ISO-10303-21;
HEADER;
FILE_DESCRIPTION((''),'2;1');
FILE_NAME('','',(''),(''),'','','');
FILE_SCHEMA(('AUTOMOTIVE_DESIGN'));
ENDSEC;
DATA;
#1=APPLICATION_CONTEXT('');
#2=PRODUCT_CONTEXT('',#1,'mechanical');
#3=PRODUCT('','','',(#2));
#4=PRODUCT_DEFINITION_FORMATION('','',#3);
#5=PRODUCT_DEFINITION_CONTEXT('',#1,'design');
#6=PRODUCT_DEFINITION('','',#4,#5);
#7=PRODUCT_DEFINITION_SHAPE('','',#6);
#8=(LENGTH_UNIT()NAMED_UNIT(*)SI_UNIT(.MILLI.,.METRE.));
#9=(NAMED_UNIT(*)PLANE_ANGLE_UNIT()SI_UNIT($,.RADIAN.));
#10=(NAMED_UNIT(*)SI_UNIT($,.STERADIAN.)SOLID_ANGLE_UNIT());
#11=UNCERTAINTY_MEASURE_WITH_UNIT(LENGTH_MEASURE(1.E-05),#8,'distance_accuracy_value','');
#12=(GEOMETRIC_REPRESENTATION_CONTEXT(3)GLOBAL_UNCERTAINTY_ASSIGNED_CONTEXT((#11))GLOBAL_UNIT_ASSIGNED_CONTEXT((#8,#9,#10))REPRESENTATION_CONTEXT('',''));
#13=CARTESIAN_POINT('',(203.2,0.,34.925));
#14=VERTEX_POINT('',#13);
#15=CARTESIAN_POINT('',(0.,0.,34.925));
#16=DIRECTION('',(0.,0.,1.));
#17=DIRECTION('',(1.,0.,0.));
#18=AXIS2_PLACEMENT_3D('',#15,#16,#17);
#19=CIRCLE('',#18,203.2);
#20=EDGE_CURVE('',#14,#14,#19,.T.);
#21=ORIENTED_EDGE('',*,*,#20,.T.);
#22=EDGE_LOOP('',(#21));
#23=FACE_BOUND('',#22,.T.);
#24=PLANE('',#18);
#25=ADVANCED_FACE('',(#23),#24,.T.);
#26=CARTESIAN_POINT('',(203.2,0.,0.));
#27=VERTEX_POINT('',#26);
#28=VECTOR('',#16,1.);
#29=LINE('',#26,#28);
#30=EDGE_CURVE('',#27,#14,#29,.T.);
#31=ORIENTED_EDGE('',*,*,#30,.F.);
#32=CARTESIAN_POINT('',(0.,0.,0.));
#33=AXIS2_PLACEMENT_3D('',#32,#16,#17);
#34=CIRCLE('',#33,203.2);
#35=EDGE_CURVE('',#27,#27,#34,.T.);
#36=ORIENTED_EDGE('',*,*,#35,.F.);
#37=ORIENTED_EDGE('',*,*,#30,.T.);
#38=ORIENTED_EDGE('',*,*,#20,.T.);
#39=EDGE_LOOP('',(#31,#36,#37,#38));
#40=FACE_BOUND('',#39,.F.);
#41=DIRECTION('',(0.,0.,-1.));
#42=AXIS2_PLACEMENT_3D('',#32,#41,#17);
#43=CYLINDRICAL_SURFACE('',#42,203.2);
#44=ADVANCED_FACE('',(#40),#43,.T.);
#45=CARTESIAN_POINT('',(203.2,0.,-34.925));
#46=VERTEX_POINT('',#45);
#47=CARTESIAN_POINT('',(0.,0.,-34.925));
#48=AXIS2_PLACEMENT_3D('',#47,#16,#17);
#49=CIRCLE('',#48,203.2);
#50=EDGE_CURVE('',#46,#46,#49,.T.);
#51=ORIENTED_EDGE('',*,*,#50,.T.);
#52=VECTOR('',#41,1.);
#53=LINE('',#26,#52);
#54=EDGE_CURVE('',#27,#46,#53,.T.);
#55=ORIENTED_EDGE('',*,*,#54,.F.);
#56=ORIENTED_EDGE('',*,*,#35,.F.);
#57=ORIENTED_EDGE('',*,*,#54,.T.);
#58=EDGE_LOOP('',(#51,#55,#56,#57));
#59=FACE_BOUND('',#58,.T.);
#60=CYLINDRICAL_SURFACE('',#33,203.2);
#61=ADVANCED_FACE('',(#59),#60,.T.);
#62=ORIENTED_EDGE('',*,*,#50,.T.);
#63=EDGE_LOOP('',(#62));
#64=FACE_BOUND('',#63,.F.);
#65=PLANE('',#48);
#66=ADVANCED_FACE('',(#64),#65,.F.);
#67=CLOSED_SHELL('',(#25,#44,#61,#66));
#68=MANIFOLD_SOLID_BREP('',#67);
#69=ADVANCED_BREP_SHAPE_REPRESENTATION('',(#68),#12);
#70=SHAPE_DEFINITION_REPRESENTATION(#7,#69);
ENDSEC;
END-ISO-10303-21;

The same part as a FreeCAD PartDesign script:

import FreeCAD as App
import Part
import Sketcher
Q = App.Units.Quantity

doc = App.newDocument("Part")
params = doc.addObject("Spreadsheet::Sheet", "Params")
for row, (alias, value) in enumerate([
    ("sketch1_diameter", "16 in"),
    ("pad1_length", "2.75 in"),
], start=1):
    params.set(f"A{row}", alias)
    params.set(f"B{row}", "=" + value)
    params.setAlias(f"B{row}", alias)

body = doc.addObject("PartDesign::Body", "Body")

sketch1 = body.newObject("Sketcher::SketchObject", "Sketch")
sketch1.AttachmentSupport = (doc.getObject("XY_Plane"), [""])
sketch1.MapMode = "FlatFace"
sketch1.addGeometry(Part.Circle(App.Vector(0, 0, 0), App.Vector(0, 0, 1), 203), False)
sketch1.addConstraint(Sketcher.Constraint("Coincident", 0, 3, -1, 1))
sketch1.addConstraint(Sketcher.Constraint("Diameter", 0, Q("16 in")))
sketch1.setExpression("Constraints[1]", "Params.sketch1_diameter")
pad1 = body.newObject("PartDesign::Pad", "Pad")
pad1.Profile = sketch1
pad1.setExpression("Length", "Params.pad1_length")
pad1.Midplane = True

doc.recompute()
